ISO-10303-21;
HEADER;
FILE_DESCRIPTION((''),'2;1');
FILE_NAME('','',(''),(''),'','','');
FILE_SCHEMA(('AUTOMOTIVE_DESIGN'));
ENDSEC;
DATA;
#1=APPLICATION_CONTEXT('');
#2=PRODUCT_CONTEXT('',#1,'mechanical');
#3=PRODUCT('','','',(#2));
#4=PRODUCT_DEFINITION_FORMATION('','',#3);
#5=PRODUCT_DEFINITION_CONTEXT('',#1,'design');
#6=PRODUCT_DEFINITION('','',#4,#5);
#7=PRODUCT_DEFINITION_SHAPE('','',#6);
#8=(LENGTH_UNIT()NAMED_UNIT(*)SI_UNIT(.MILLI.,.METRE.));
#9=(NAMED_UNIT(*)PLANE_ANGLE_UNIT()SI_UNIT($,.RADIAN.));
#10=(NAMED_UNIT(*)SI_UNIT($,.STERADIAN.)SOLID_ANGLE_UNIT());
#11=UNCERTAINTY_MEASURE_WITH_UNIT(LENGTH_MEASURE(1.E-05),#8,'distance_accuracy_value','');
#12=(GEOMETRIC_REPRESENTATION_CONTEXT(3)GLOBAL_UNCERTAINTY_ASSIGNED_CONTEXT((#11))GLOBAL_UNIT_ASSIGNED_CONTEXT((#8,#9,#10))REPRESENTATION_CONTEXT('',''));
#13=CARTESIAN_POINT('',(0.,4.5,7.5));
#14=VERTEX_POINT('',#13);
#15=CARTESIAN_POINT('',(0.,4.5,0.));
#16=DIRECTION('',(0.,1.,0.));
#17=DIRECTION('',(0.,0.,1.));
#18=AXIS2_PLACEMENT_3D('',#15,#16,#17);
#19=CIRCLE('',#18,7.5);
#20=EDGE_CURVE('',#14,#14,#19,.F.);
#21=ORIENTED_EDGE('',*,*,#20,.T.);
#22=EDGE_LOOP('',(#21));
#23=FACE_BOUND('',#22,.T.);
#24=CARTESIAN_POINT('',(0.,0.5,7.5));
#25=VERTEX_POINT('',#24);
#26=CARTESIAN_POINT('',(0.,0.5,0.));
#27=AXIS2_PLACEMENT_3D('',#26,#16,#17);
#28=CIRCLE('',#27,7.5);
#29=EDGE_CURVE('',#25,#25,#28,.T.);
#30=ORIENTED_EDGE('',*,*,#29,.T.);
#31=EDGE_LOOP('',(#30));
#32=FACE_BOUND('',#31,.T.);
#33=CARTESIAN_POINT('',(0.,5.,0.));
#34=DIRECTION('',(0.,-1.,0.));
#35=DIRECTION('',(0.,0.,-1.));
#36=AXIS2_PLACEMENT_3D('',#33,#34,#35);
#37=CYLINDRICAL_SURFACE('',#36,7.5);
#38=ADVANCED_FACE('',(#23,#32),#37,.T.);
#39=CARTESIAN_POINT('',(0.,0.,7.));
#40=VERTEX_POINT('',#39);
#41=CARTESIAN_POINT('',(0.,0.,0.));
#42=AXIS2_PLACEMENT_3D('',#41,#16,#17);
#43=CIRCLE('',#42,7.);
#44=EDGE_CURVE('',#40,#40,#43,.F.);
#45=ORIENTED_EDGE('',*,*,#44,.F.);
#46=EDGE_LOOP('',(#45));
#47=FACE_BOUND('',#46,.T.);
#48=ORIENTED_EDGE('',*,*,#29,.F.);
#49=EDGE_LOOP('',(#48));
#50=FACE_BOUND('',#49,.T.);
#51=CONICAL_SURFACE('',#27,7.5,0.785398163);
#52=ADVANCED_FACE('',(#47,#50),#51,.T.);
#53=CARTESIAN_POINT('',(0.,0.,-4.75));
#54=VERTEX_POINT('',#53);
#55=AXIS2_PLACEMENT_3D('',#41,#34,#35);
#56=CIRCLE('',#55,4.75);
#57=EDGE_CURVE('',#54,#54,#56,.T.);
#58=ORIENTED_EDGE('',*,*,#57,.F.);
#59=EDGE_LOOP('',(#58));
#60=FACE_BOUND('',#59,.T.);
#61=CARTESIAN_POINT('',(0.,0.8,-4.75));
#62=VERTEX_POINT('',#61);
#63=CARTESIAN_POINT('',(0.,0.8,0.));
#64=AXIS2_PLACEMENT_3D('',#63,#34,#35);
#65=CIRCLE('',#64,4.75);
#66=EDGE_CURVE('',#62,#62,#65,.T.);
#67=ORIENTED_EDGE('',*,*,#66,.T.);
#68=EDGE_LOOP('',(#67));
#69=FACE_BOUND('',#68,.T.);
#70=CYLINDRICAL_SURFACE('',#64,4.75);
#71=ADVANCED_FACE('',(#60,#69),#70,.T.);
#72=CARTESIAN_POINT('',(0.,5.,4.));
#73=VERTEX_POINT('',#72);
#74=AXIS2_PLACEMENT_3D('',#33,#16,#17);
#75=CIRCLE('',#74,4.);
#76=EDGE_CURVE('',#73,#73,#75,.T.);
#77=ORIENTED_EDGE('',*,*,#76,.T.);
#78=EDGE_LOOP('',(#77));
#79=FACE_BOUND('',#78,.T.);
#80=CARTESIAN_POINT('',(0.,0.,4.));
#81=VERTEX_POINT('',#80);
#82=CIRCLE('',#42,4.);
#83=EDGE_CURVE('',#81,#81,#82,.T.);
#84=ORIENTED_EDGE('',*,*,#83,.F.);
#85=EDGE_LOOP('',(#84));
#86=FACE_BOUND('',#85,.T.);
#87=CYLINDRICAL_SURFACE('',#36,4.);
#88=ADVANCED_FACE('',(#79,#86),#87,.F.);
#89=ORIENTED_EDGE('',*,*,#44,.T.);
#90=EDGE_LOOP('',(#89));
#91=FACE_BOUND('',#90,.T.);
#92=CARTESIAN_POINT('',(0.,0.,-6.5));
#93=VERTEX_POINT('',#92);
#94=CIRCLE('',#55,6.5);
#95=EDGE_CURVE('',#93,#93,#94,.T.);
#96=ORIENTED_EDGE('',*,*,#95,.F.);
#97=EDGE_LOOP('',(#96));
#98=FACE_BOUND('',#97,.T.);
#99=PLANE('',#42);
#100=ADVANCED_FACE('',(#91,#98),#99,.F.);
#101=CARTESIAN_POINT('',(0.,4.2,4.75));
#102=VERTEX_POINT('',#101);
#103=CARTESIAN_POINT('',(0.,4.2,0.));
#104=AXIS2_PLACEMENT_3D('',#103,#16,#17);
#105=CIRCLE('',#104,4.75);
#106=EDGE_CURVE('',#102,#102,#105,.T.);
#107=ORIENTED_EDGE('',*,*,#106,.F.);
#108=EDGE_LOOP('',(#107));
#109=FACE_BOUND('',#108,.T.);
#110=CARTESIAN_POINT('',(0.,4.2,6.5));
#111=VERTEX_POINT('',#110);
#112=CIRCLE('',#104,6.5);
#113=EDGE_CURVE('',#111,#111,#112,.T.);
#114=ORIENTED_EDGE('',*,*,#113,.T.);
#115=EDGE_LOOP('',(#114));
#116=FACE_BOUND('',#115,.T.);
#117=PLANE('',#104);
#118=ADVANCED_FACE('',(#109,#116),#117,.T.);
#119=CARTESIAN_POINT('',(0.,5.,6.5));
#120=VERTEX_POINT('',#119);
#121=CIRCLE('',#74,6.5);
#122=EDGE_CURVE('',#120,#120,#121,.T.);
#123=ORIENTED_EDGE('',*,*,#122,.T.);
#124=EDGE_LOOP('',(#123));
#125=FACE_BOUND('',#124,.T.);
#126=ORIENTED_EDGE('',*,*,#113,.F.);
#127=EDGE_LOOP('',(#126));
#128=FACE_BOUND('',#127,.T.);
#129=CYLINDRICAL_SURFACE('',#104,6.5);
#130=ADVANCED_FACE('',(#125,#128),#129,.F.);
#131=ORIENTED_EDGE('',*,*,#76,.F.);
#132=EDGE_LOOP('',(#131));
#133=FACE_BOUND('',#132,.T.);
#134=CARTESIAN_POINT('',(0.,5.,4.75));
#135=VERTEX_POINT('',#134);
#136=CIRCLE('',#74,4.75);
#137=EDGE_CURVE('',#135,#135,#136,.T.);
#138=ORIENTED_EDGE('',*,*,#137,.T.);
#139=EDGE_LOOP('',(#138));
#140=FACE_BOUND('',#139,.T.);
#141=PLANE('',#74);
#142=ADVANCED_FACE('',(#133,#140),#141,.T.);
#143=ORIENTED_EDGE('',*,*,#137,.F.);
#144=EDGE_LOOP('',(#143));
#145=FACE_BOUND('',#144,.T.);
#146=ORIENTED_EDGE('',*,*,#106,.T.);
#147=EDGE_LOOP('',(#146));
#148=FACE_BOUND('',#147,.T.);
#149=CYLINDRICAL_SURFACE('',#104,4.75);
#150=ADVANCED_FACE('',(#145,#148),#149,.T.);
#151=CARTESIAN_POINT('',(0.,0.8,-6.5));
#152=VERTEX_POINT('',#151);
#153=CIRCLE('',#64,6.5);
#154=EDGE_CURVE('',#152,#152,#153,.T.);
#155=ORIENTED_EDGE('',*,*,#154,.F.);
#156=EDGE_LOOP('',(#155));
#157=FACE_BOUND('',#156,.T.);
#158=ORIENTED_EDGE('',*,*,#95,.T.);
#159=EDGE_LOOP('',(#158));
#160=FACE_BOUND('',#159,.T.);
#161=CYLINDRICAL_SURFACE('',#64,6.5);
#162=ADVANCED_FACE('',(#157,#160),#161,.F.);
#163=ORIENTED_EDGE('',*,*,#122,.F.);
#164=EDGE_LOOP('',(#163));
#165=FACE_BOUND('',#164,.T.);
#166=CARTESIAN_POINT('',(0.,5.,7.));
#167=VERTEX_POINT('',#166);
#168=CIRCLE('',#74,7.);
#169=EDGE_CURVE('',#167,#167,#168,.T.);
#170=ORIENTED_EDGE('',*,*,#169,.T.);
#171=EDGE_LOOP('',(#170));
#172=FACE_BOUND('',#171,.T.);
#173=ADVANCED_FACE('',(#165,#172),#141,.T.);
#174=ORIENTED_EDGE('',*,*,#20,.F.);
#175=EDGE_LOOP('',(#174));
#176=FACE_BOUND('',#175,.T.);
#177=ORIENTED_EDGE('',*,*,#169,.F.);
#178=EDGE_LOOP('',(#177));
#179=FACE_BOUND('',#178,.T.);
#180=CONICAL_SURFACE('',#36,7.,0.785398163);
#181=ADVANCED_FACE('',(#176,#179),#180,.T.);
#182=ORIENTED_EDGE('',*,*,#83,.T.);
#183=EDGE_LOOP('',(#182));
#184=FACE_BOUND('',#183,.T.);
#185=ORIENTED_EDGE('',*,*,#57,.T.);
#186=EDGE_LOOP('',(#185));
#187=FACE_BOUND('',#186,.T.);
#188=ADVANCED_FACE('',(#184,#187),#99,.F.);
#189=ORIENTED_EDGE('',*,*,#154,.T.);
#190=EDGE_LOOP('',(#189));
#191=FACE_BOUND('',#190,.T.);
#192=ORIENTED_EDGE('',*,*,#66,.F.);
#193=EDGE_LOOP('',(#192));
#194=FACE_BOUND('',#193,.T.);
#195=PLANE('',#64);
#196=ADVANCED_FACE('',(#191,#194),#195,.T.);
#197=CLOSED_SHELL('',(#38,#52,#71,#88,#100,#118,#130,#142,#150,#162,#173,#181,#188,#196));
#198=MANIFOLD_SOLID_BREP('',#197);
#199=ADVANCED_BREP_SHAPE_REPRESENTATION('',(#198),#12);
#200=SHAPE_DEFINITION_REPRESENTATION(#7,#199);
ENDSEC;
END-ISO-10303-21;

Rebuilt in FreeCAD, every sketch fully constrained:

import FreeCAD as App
import Part
import Sketcher
Q = App.Units.Quantity


def edges_at(feature, points):
    """Names of the edges that pass closest to the given points."""
    edges = feature.Shape.Edges
    near = lambda p: min(range(len(edges)), key=lambda i: edges[i].distToShape(Part.Vertex(*p))[0])
    return sorted({f"Edge{near(p) + 1}" for p in points})

doc = App.newDocument("Part")
body = doc.addObject("PartDesign::Body", "Body")

# Sketch on XZ plane
sketch1 = body.newObject("Sketcher::SketchObject", "Sketch")
sketch1.AttachmentSupport = (doc.getObject("XZ_Plane"), [""])
sketch1.MapMode = "FlatFace"
sketch1.addGeometry([
    Part.Circle(App.Vector(0, 0, 0), App.Vector(0, 0, 1), 7.5),
    Part.Circle(App.Vector(0, 0, 0), App.Vector(0, 0, 1), 4),
], False)
sketch1.addConstraint([
    Sketcher.Constraint("Coincident", 0, 3, -1, 1),
    Sketcher.Constraint("Coincident", 1, 3, -1, 1),
    Sketcher.Constraint("Diameter", 0, Q("15 mm")),
    Sketcher.Constraint("Diameter", 1, Q("8 mm")),
])
pad1 = body.newObject("PartDesign::Pad", "Pad")
pad1.Profile = sketch1
pad1.Length = 5
pad1.Reversed = True
doc.recompute()

chamfer = body.newObject("PartDesign::Chamfer", "Chamfer")
chamfer.Base = (pad1, edges_at(pad1, [(0, 5, -7.5)]))
chamfer.Size = 0.5
doc.recompute()

chamfer2 = body.newObject("PartDesign::Chamfer", "Chamfer001")
chamfer2.Base = (chamfer, edges_at(chamfer, [(0, 0, -7.5)]))
chamfer2.Size = 0.5

# Sketch on XZ plane
sketch2 = body.newObject("Sketcher::SketchObject", "Sketch001")
sketch2.AttachmentSupport = (doc.getObject("XZ_Plane"), [""])
sketch2.MapMode = "FlatFace"
sketch2.AttachmentOffset = App.Placement(App.Vector(0, 0, -5), App.Rotation())
sketch2.addGeometry([
    Part.Circle(App.Vector(0, 0, 0), App.Vector(0, 0, 1), 6.5),
    Part.Circle(App.Vector(0, 0, 0), App.Vector(0, 0, 1), 4.8),
], False)
sketch2.addConstraint([
    Sketcher.Constraint("Coincident", 0, 3, -1, 1),
    Sketcher.Constraint("Coincident", 1, 3, -1, 1),
    Sketcher.Constraint("Diameter", 0, Q("13 mm")),
    Sketcher.Constraint("Diameter", 1, Q("9.5 mm")),
])
pocket1 = body.newObject("PartDesign::Pocket", "Pocket")
pocket1.Profile = sketch2
pocket1.Length = 0.8
pocket1.Reversed = True

# Sketch on XZ plane
sketch3 = body.newObject("Sketcher::SketchObject", "Sketch002")
sketch3.AttachmentSupport = (doc.getObject("XZ_Plane"), [""])
sketch3.MapMode = "FlatFace"
sketch3.AttachmentOffset = App.Placement(App.Vector(0, 0, -0.8), App.Rotation())
sketch3.addGeometry([
    Part.Circle(App.Vector(0, 0, 0), App.Vector(0, 0, 1), 6.5),
    Part.Circle(App.Vector(0, 0, 0), App.Vector(0, 0, 1), 4.8),
], False)
sketch3.addConstraint([
    Sketcher.Constraint("Coincident", 0, 3, -1, 1),
    Sketcher.Constraint("Coincident", 1, 3, -1, 1),
    Sketcher.Constraint("Diameter", 0, Q("13 mm")),
    Sketcher.Constraint("Diameter", 1, Q("9.5 mm")),
])
pocket2 = body.newObject("PartDesign::Pocket", "Pocket001")
pocket2.Profile = sketch3
pocket2.Length = 0.8
pocket2.Reversed = True

doc.recompute()
